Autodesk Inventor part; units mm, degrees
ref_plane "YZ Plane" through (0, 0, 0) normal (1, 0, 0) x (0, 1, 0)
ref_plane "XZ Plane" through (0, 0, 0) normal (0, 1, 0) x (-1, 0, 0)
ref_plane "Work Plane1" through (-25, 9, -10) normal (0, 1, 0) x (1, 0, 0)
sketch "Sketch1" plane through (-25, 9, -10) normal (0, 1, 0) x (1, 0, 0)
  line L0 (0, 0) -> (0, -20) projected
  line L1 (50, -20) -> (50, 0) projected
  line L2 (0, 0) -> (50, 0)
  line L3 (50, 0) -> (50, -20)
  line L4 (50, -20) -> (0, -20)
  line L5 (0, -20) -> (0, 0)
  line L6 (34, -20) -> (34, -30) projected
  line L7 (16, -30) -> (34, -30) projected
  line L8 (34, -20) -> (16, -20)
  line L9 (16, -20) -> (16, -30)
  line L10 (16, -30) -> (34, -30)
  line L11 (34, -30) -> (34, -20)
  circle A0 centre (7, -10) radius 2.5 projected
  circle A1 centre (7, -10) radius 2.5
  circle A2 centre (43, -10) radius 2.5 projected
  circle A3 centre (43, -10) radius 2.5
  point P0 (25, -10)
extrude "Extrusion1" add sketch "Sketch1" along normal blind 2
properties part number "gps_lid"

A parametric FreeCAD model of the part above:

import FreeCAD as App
import Part
import Sketcher

V = App.Vector
Q = App.Units.Quantity


def add_polygon(sketch, points):
    """Adds a closed chain of lines whose ends are joined by coincident constraints."""
    first, n = sketch.GeometryCount, len(points)
    for a, b in zip(points, points[1:] + points[:1]):
        sketch.addGeometry(Part.LineSegment(App.Vector(*a, 0), App.Vector(*b, 0)), False)
    for i in range(n):
        sketch.addConstraint(Sketcher.Constraint("Coincident", first + i, 2, first + (i + 1) % n, 1))

doc = App.newDocument("Part")
params = doc.addObject("Spreadsheet::Sheet", "Params")
for row, (alias, value) in enumerate([
    ("sketch1_diameter", "5 mm"),
    ("sketch1_width", "50 mm"),
    ("sketch1_width2", "16 mm"),
    ("sketch1_height", "20 mm"),
    ("sketch1_height2", "10 mm"),
    ("pad1_length", "2 mm"),
], start=1):
    params.set(f"A{row}", alias)
    params.set(f"B{row}", "=" + value)
    params.setAlias(f"B{row}", alias)

body = doc.addObject("PartDesign::Body", "Body")

sketch1 = body.newObject("Sketcher::SketchObject", "Sketch")
sketch1.AttachmentSupport = (doc.getObject("XZ_Plane"), [""])
sketch1.MapMode = "FlatFace"
sketch1.AttachmentOffset = App.Placement(V(0, 0, -9), App.Rotation())
add_polygon(sketch1, [(25, -10), (-25, -10), (-25, 10), (-9, 10), (-9, 20), (9, 20), (9, 10), (25, 10)])
sketch1.addGeometry(Part.Circle(V(-18, 0, 0), V(0, 0, 1), 2.5), False)
sketch1.addGeometry(Part.Circle(V(18, 0, 0), V(0, 0, 1), 2.5), False)
sketch1.addConstraint(Sketcher.Constraint("Horizontal", 0))
sketch1.addConstraint(Sketcher.Constraint("Vertical", 1))
sketch1.addConstraint(Sketcher.Constraint("Horizontal", 2))
sketch1.addConstraint(Sketcher.Constraint("Vertical", 3))
sketch1.addConstraint(Sketcher.Constraint("Horizontal", 4))
sketch1.addConstraint(Sketcher.Constraint("Vertical", 5))
sketch1.addConstraint(Sketcher.Constraint("Horizontal", 6))
sketch1.addConstraint(Sketcher.Constraint("Vertical", 7))
sketch1.addConstraint(Sketcher.Constraint("Equal", 8, 9))
sketch1.addConstraint(Sketcher.Constraint("Symmetric", 8, 3, 9, 3, -1, 1))
sketch1.addConstraint(Sketcher.Constraint("Symmetric", 0, 2, 6, 2, -1, 1))
sketch1.addConstraint(Sketcher.Constraint("Symmetric", 2, 2, 5, 2, -2))
sketch1.addConstraint(Sketcher.Constraint("PointOnObject", 8, 3, -1))
sketch1.addConstraint(Sketcher.Constraint("Diameter", 8, Q("5 mm")))
sketch1.addConstraint(Sketcher.Constraint("DistanceX", 0, 2, 0, 1, Q("50 mm")))
sketch1.addConstraint(Sketcher.Constraint("DistanceX", 2, 1, 2, 2, Q("16 mm")))
sketch1.addConstraint(Sketcher.Constraint("DistanceY", 1, 1, 1, 2, Q("20 mm")))
sketch1.addConstraint(Sketcher.Constraint("DistanceY", 3, 1, 3, 2, Q("10 mm")))
sketch1.addConstraint(Sketcher.Constraint("DistanceX", 8, 3, -1, 1, Q("18 mm")))
sketch1.setExpression("Constraints[21]", "Params.sketch1_diameter")
sketch1.setExpression("Constraints[22]", "Params.sketch1_width")
sketch1.setExpression("Constraints[23]", "Params.sketch1_width2")
sketch1.setExpression("Constraints[24]", "Params.sketch1_height")
sketch1.setExpression("Constraints[25]", "Params.sketch1_height2")
pad1 = body.newObject("PartDesign::Pad", "Pad")
pad1.Profile = sketch1
pad1.setExpression("Length", "Params.pad1_length")
pad1.Reversed = True

doc.recompute()
